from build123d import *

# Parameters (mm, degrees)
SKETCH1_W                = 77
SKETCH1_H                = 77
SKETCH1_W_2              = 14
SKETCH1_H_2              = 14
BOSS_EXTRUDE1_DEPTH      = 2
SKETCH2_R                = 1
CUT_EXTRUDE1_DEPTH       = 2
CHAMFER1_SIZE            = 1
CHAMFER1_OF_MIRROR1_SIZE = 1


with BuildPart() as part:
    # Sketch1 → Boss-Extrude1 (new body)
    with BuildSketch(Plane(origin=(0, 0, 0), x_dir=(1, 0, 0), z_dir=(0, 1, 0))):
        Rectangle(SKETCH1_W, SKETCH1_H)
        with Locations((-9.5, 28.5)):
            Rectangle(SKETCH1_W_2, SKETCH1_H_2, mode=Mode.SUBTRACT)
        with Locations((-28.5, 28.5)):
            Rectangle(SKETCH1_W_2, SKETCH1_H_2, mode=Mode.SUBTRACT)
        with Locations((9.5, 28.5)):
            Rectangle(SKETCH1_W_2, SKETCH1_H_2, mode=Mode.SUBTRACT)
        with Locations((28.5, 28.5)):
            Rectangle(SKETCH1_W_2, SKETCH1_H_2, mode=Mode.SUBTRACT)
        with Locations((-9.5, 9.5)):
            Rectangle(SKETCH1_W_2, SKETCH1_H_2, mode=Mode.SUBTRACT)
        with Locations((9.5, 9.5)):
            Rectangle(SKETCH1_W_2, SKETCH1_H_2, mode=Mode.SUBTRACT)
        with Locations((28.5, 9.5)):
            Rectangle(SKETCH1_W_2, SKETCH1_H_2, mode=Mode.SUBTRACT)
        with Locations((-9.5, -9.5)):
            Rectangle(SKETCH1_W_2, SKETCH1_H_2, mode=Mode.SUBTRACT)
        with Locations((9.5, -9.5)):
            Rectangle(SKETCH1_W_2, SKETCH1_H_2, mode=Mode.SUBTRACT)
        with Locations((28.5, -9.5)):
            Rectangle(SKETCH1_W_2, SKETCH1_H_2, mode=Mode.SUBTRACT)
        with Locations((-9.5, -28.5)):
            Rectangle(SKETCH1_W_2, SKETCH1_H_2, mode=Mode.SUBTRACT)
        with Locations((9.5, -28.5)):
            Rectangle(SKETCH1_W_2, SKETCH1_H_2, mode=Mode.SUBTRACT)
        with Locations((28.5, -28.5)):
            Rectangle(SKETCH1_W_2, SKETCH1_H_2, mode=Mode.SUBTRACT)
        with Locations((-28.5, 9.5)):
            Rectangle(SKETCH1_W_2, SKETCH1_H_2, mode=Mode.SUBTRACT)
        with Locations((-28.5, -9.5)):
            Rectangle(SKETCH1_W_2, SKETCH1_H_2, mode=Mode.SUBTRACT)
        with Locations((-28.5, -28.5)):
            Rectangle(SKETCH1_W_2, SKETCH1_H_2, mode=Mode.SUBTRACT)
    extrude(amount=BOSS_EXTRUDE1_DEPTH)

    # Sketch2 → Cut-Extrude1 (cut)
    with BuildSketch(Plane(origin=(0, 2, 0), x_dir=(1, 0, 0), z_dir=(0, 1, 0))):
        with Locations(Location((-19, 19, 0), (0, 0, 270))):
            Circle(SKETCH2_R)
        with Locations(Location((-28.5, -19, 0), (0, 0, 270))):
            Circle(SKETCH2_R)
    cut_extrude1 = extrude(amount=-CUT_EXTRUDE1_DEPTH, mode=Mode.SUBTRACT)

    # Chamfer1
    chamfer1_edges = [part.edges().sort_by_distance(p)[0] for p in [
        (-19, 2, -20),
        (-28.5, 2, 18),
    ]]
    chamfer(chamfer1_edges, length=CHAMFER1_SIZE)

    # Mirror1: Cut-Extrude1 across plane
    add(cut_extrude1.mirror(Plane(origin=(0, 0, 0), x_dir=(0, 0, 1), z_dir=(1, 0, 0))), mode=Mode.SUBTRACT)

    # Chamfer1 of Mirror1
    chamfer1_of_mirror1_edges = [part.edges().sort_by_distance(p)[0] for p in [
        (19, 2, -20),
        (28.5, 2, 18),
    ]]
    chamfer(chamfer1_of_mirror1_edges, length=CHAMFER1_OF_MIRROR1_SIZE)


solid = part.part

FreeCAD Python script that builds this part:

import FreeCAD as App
import Part
import Sketcher

V = App.Vector


def edges_at(feature, points):
    """Names of the edges that pass closest to the given points."""
    edges = feature.Shape.Edges
    near = lambda p: min(range(len(edges)), key=lambda i: edges[i].distToShape(Part.Vertex(*p))[0])
    return sorted({f"Edge{near(p) + 1}" for p in points})


def add_polygon(sketch, points):
    """Adds a closed chain of lines whose ends are joined by coincident constraints."""
    first, n = sketch.GeometryCount, len(points)
    for a, b in zip(points, points[1:] + points[:1]):
        sketch.addGeometry(Part.LineSegment(App.Vector(*a, 0), App.Vector(*b, 0)), False)
    for i in range(n):
        sketch.addConstraint(Sketcher.Constraint("Coincident", first + i, 2, first + (i + 1) % n, 1))

doc = App.newDocument("Part")
body = doc.addObject("PartDesign::Body", "Body")

sketch1 = body.newObject("Sketcher::SketchObject", "Sketch")
sketch1.AttachmentSupport = (doc.getObject("XZ_Plane"), [""])
sketch1.MapMode = "FlatFace"
add_polygon(sketch1, [(-38, -38), (-38, 38), (38, 38), (38, -38)])
add_polygon(sketch1, [(-22, 36), (-36, 36), (-36, 22), (-22, 22)])
add_polygon(sketch1, [(-2, 36), (-16, 36), (-16, 22), (-2, 22)])
add_polygon(sketch1, [(-22, 16), (-36, 16), (-36, 2), (-22, 2)])
add_polygon(sketch1, [(-2, 16), (-16, 16), (-16, 2), (-2, 2)])
add_polygon(sketch1, [(16, 36), (2, 36), (2, 22), (16, 22)])
add_polygon(sketch1, [(36, 36), (22, 36), (22, 22), (36, 22)])
add_polygon(sketch1, [(16, 16), (2, 16), (2, 2), (16, 2)])
add_polygon(sketch1, [(36, 16), (22, 16), (22, 2), (36, 2)])
add_polygon(sketch1, [(-22, -2), (-36, -2), (-36, -16), (-22, -16)])
add_polygon(sketch1, [(-2, -2), (-16, -2), (-16, -16), (-2, -16)])
add_polygon(sketch1, [(-22, -22), (-36, -22), (-36, -36), (-22, -36)])
add_polygon(sketch1, [(-2, -22), (-16, -22), (-16, -36), (-2, -36)])
add_polygon(sketch1, [(16, -2), (2, -2), (2, -16), (16, -16)])
add_polygon(sketch1, [(36, -2), (22, -2), (22, -16), (36, -16)])
add_polygon(sketch1, [(16, -22), (2, -22), (2, -36), (16, -36)])
add_polygon(sketch1, [(36, -22), (22, -22), (22, -36), (36, -36)])
sketch1.addConstraint(Sketcher.Constraint("Vertical", 0))
sketch1.addConstraint(Sketcher.Constraint("Horizontal", 1))
sketch1.addConstraint(Sketcher.Constraint("Vertical", 2))
sketch1.addConstraint(Sketcher.Constraint("Horizontal", 3))
sketch1.addConstraint(Sketcher.Constraint("Horizontal", 4))
sketch1.addConstraint(Sketcher.Constraint("Vertical", 5))
sketch1.addConstraint(Sketcher.Constraint("Horizontal", 6))
sketch1.addConstraint(Sketcher.Constraint("Vertical", 7))
sketch1.addConstraint(Sketcher.Constraint("Horizontal", 8))
sketch1.addConstraint(Sketcher.Constraint("Vertical", 9))
sketch1.addConstraint(Sketcher.Constraint("Horizontal", 10))
sketch1.addConstraint(Sketcher.Constraint("Vertical", 11))
sketch1.addConstraint(Sketcher.Constraint("Horizontal", 12))
sketch1.addConstraint(Sketcher.Constraint("Vertical", 13))
sketch1.addConstraint(Sketcher.Constraint("Horizontal", 14))
sketch1.addConstraint(Sketcher.Constraint("Vertical", 15))
sketch1.addConstraint(Sketcher.Constraint("Horizontal", 16))
sketch1.addConstraint(Sketcher.Constraint("Vertical", 17))
sketch1.addConstraint(Sketcher.Constraint("Horizontal", 18))
sketch1.addConstraint(Sketcher.Constraint("Vertical", 19))
sketch1.addConstraint(Sketcher.Constraint("Horizontal", 20))
sketch1.addConstraint(Sketcher.Constraint("Vertical", 21))
sketch1.addConstraint(Sketcher.Constraint("Horizontal", 22))
sketch1.addConstraint(Sketcher.Constraint("Vertical", 23))
sketch1.addConstraint(Sketcher.Constraint("Horizontal", 24))
sketch1.addConstraint(Sketcher.Constraint("Vertical", 25))
sketch1.addConstraint(Sketcher.Constraint("Horizontal", 26))
sketch1.addConstraint(Sketcher.Constraint("Vertical", 27))
sketch1.addConstraint(Sketcher.Constraint("Horizontal", 28))
sketch1.addConstraint(Sketcher.Constraint("Vertical", 29))
sketch1.addConstraint(Sketcher.Constraint("Horizontal", 30))
sketch1.addConstraint(Sketcher.Constraint("Vertical", 31))
sketch1.addConstraint(Sketcher.Constraint("Horizontal", 32))
sketch1.addConstraint(Sketcher.Constraint("Vertical", 33))
sketch1.addConstraint(Sketcher.Constraint("Horizontal", 34))
sketch1.addConstraint(Sketcher.Constraint("Vertical", 35))
sketch1.addConstraint(Sketcher.Constraint("Horizontal", 36))
sketch1.addConstraint(Sketcher.Constraint("Vertical", 37))
sketch1.addConstraint(Sketcher.Constraint("Horizontal", 38))
sketch1.addConstraint(Sketcher.Constraint("Vertical", 39))
sketch1.addConstraint(Sketcher.Constraint("Horizontal", 40))
sketch1.addConstraint(Sketcher.Constraint("Vertical", 41))
sketch1.addConstraint(Sketcher.Constraint("Horizontal", 42))
sketch1.addConstraint(Sketcher.Constraint("Vertical", 43))
sketch1.addConstraint(Sketcher.Constraint("Horizontal", 44))
sketch1.addConstraint(Sketcher.Constraint("Vertical", 45))
sketch1.addConstraint(Sketcher.Constraint("Horizontal", 46))
sketch1.addConstraint(Sketcher.Constraint("Vertical", 47))
sketch1.addConstraint(Sketcher.Constraint("Horizontal", 48))
sketch1.addConstraint(Sketcher.Constraint("Vertical", 49))
sketch1.addConstraint(Sketcher.Constraint("Horizontal", 50))
sketch1.addConstraint(Sketcher.Constraint("Vertical", 51))
sketch1.addConstraint(Sketcher.Constraint("Horizontal", 52))
sketch1.addConstraint(Sketcher.Constraint("Vertical", 53))
sketch1.addConstraint(Sketcher.Constraint("Horizontal", 54))
sketch1.addConstraint(Sketcher.Constraint("Vertical", 55))
sketch1.addConstraint(Sketcher.Constraint("Horizontal", 56))
sketch1.addConstraint(Sketcher.Constraint("Vertical", 57))
sketch1.addConstraint(Sketcher.Constraint("Horizontal", 58))
sketch1.addConstraint(Sketcher.Constraint("Vertical", 59))
sketch1.addConstraint(Sketcher.Constraint("Horizontal", 60))
sketch1.addConstraint(Sketcher.Constraint("Vertical", 61))
sketch1.addConstraint(Sketcher.Constraint("Horizontal", 62))
sketch1.addConstraint(Sketcher.Constraint("Vertical", 63))
sketch1.addConstraint(Sketcher.Constraint("Horizontal", 64))
sketch1.addConstraint(Sketcher.Constraint("Vertical", 65))
sketch1.addConstraint(Sketcher.Constraint("Horizontal", 66))
sketch1.addConstraint(Sketcher.Constraint("Vertical", 67))
sketch1.addConstraint(Sketcher.Constraint("Symmetric", 0, 2, 2, 2, -1, 1))
sketch1.addConstraint(Sketcher.Constraint("Symmetric", 34, 2, 36, 2, -1, 1))
sketch1.addConstraint(Sketcher.Constraint("Symmetric", 32, 2, 38, 2, -1, 1))
sketch1.addConstraint(Sketcher.Constraint("Symmetric", 30, 2, 40, 2, -1, 1))
sketch1.addConstraint(Sketcher.Constraint("Symmetric", 28, 2, 42, 2, -1, 1))
sketch1.addConstraint(Sketcher.Constraint("Symmetric", 26, 2, 44, 2, -1, 1))
sketch1.addConstraint(Sketcher.Constraint("Symmetric", 24, 2, 46, 2, -1, 1))
sketch1.addConstraint(Sketcher.Constraint("Symmetric", 22, 2, 48, 2, -1, 1))
sketch1.addConstraint(Sketcher.Constraint("Symmetric", 20, 2, 50, 2, -1, 1))
sketch1.addConstraint(Sketcher.Constraint("Symmetric", 18, 2, 52, 2, -1, 1))
sketch1.addConstraint(Sketcher.Constraint("Symmetric", 16, 2, 54, 2, -1, 1))
sketch1.addConstraint(Sketcher.Constraint("Symmetric", 14, 2, 56, 2, -1, 1))
sketch1.addConstraint(Sketcher.Constraint("Symmetric", 12, 2, 58, 2, -1, 1))
sketch1.addConstraint(Sketcher.Constraint("Symmetric", 10, 2, 60, 2, -1, 1))
sketch1.addConstraint(Sketcher.Constraint("Symmetric", 8, 2, 62, 2, -1, 1))
sketch1.addConstraint(Sketcher.Constraint("Symmetric", 6, 2, 64, 2, -1, 1))
sketch1.addConstraint(Sketcher.Constraint("Symmetric", 4, 2, 66, 2, -1, 1))
sketch1.addConstraint(Sketcher.Constraint("Symmetric", 11, 2, 20, 2, -2))
sketch1.addConstraint(Sketcher.Constraint("Symmetric", 9, 2, 22, 2, -2))
sketch1.addConstraint(Sketcher.Constraint("Symmetric", 7, 2, 24, 2, -2))
sketch1.addConstraint(Sketcher.Constraint("Symmetric", 5, 2, 26, 2, -2))
sketch1.addConstraint(Sketcher.Constraint("Symmetric", 19, 2, 28, 2, -2))
sketch1.addConstraint(Sketcher.Constraint("Symmetric", 17, 2, 30, 2, -2))
sketch1.addConstraint(Sketcher.Constraint("Symmetric", 15, 2, 32, 2, -2))
sketch1.addConstraint(Sketcher.Constraint("Symmetric", 13, 2, 34, 2, -2))
sketch1.addConstraint(Sketcher.Constraint("Horizontal", 7, 2, 8, 2))
sketch1.addConstraint(Sketcher.Constraint("Horizontal", 6, 2, 9, 2))
sketch1.addConstraint(Sketcher.Constraint("Horizontal", 15, 2, 16, 2))
sketch1.addConstraint(Sketcher.Constraint("Horizontal", 14, 2, 17, 2))
sketch1.addConstraint(Sketcher.Constraint("Vertical", 5, 2, 12, 2))
sketch1.addConstraint(Sketcher.Constraint("Vertical", 7, 2, 14, 2))
sketch1.addConstraint(Sketcher.Constraint("Vertical", 9, 2, 16, 2))
sketch1.addConstraint(Sketcher.Constraint("Vertical", 11, 2, 18, 2))
sketch1.addConstraint(Sketcher.Constraint("Equal", 6, 8))
sketch1.addConstraint(Sketcher.Constraint("Equal", 3, 0))
sketch1.addConstraint(Sketcher.Constraint("Equal", 66, 5))
sketch1.addConstraint(Sketcher.Constraint("Equal", 11, 13))
sketch1.addConstraint(Sketcher.Constraint("DistanceX", 1, 1, 1, 2, 77.0))
sketch1.addConstraint(Sketcher.Constraint("DistanceX", 4, 2, 4, 1, 14.0))
sketch1.addConstraint(Sketcher.Constraint("DistanceX", 4, 2, -1, 1, 35.5))
sketch1.addConstraint(Sketcher.Constraint("DistanceY", -1, 1, 4, 2, 35.5))
sketch1.addConstraint(Sketcher.Constraint("DistanceX", 8, 2, -1, 1, 16.5))
sketch1.addConstraint(Sketcher.Constraint("DistanceY", -1, 1, 12, 2, 16.5))
pad1 = body.newObject("PartDesign::Pad", "Pad")
pad1.Profile = sketch1
pad1.Length = 2
pad1.Reversed = True

sketch2 = body.newObject("Sketcher::SketchObject", "Sketch001")
sketch2.AttachmentSupport = (doc.getObject("XZ_Plane"), [""])
sketch2.MapMode = "FlatFace"
sketch2.AttachmentOffset = App.Placement(V(0, 0, -2), App.Rotation())
sketch2.addGeometry(Part.Circle(V(-19, -19, 0), V(0, 0, 1), 1), False)
sketch2.addGeometry(Part.Circle(V(-28.5, 19, 0), V(0, 0, 1), 1), False)
sketch2.addConstraint(Sketcher.Constraint("Equal", 0, 1))
sketch2.addConstraint(Sketcher.Constraint("Diameter", 0, 2.0))
sketch2.addConstraint(Sketcher.Constraint("DistanceX", 0, 3, -1, 1, 19.0))
sketch2.addConstraint(Sketcher.Constraint("DistanceY", 0, 3, -1, 1, 19.0))
sketch2.addConstraint(Sketcher.Constraint("DistanceY", -1, 1, 1, 3, 19.0))
sketch2.addConstraint(Sketcher.Constraint("DistanceX", 1, 3, -1, 1, 28.5))
pocket1 = body.newObject("PartDesign::Pocket", "Pocket")
pocket1.Profile = sketch2
pocket1.Length = 2
pocket1.Reversed = True
doc.recompute()

chamfer = body.newObject("PartDesign::Chamfer", "Chamfer")
chamfer.Base = (pocket1, edges_at(pocket1, [(-19, 2, -20), (-28.5, 2, 18)]))
chamfer.Size = 1
doc.recompute()

mirrored = body.newObject("PartDesign::Mirrored", "Mirrored")
mirrored.Originals = [pocket1]
mirrored.MirrorPlane = (doc.getObject("YZ_Plane"), [""])
body.Tip = mirrored
doc.recompute()

chamfer2 = body.newObject("PartDesign::Chamfer", "Chamfer001")
chamfer2.Base = (mirrored, edges_at(mirrored, [(19, 2, -20), (28.5, 2, 18)]))
chamfer2.Size = 1

doc.recompute()
